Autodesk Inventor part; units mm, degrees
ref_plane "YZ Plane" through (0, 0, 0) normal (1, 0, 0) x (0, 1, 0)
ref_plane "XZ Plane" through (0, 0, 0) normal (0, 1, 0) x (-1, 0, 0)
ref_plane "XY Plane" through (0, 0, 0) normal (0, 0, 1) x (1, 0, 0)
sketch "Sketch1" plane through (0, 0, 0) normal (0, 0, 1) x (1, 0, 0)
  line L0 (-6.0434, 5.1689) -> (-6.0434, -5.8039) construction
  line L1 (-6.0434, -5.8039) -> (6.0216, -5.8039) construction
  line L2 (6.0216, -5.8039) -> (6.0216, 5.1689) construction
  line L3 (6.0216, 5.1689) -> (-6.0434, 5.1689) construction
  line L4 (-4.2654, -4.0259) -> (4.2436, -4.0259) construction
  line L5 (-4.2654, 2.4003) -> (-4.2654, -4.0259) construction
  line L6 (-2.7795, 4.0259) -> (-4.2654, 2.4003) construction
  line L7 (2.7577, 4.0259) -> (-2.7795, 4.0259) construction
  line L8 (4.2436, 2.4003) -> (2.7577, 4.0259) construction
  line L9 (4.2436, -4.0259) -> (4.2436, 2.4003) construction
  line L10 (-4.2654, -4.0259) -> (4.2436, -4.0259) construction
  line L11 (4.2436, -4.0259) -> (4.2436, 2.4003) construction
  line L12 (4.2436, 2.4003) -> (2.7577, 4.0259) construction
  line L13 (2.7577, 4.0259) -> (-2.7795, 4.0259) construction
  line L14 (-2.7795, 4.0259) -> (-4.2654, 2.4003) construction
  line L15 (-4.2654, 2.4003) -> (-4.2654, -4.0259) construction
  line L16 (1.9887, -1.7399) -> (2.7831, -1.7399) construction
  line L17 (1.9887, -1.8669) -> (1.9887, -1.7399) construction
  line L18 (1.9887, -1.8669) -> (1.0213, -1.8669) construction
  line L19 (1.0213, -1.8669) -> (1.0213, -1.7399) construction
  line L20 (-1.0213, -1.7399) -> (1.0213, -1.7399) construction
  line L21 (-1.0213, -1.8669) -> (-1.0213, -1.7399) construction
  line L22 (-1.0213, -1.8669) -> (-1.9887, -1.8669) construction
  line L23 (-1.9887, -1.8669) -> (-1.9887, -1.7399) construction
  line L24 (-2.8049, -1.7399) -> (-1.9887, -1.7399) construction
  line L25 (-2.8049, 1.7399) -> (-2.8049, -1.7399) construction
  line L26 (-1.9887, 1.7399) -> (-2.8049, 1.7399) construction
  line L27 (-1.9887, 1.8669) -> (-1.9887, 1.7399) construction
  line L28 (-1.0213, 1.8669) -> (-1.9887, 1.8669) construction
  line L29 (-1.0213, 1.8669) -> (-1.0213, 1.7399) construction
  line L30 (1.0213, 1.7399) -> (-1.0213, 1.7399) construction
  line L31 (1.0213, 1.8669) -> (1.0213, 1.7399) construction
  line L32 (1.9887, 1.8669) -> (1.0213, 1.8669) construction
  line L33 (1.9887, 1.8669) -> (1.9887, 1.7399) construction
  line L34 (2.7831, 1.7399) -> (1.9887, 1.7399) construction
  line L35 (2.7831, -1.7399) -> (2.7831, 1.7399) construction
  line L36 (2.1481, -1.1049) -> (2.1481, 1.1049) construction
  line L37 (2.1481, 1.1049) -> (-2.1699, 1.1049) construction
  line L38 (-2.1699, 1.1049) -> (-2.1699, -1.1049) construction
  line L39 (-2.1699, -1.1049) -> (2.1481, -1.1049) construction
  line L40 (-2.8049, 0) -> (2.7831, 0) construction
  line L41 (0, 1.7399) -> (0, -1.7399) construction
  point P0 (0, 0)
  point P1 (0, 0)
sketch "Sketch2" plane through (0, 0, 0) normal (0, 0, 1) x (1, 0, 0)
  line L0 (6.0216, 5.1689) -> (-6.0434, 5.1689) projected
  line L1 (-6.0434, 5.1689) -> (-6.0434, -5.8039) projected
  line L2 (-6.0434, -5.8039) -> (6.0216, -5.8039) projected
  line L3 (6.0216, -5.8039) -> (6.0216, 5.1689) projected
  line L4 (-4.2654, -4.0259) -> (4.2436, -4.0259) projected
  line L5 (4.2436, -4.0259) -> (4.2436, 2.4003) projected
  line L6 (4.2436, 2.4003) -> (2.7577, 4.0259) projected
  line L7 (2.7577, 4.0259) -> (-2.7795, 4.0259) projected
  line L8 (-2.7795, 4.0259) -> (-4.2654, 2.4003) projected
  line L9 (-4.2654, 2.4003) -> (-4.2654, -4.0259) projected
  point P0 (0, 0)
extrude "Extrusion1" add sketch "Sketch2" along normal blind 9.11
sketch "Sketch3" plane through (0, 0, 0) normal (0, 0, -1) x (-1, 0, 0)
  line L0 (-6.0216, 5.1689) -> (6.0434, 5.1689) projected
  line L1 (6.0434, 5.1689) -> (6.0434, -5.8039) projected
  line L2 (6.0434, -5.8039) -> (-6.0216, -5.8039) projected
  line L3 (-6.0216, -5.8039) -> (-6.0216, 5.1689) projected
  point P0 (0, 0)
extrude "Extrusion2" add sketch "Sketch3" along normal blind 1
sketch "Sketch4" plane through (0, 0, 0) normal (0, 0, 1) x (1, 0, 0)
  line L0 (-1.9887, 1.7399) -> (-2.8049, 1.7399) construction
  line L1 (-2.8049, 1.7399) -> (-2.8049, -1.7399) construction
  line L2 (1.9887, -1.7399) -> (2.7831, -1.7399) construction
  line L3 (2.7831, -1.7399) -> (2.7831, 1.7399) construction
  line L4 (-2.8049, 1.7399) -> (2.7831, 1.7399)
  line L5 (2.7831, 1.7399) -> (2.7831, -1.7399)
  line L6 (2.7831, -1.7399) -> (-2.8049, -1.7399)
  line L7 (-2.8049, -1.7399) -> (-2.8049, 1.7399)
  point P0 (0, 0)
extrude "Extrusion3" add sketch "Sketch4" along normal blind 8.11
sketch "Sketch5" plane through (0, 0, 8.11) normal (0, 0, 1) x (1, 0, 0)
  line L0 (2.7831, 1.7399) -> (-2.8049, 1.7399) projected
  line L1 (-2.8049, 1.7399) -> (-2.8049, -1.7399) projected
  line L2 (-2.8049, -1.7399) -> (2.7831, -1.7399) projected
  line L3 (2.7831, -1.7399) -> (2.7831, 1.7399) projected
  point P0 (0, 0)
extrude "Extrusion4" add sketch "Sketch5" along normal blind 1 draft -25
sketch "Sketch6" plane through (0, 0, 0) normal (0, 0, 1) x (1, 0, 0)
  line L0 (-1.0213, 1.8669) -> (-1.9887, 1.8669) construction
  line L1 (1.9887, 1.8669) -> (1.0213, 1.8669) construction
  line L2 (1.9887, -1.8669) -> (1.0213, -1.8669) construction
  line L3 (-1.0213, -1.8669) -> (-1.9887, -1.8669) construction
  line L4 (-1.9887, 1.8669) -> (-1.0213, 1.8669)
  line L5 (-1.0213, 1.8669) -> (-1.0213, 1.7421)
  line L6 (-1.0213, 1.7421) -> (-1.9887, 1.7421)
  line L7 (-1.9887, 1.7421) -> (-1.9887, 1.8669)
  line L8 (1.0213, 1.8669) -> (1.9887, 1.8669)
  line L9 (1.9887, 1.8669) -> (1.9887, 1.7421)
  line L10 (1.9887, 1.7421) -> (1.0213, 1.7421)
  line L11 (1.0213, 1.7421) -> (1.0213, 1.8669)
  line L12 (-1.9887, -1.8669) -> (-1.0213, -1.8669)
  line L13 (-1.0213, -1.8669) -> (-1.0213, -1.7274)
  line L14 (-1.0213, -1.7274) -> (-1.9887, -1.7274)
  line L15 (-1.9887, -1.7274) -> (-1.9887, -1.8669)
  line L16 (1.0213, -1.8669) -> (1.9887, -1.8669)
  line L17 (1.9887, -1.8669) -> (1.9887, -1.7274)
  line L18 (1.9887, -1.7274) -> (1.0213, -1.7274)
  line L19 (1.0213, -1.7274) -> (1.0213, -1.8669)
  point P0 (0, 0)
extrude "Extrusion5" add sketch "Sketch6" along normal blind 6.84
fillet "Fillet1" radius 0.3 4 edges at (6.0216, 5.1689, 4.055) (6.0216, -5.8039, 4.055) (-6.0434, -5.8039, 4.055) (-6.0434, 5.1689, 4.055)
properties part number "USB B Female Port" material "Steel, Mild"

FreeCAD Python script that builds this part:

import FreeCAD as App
import Part
import Sketcher
Q = App.Units.Quantity


def edges_at(feature, points):
    """Names of the edges that pass closest to the given points."""
    edges = feature.Shape.Edges
    near = lambda p: min(range(len(edges)), key=lambda i: edges[i].distToShape(Part.Vertex(*p))[0])
    return sorted({f"Edge{near(p) + 1}" for p in points})


def add_polygon(sketch, points):
    """Adds a closed chain of lines whose ends are joined by coincident constraints."""
    first, n = sketch.GeometryCount, len(points)
    for a, b in zip(points, points[1:] + points[:1]):
        sketch.addGeometry(Part.LineSegment(App.Vector(*a, 0), App.Vector(*b, 0)), False)
    for i in range(n):
        sketch.addConstraint(Sketcher.Constraint("Coincident", first + i, 2, first + (i + 1) % n, 1))

doc = App.newDocument("Part")
body = doc.addObject("PartDesign::Body", "Body")

# Sketch on XY plane
sketch1 = doc.addObject("Sketcher::SketchObject", "Sketch")
body.addObject(sketch1)
sketch1.AttachmentSupport = (doc.XY_Plane, [""])
sketch1.MapMode = "FlatFace"
add_polygon(sketch1, [(6.0216, -5.8039), (6.0216, 5.1689), (-6.0434, 5.1689), (-6.0434, -5.8039)])  # lines 0-3
add_polygon(sketch1, [(4.2436, -4.0259), (-4.2654, -4.0259), (-4.2654, 2.4003), (-2.7795, 4.0259), (2.7577, 4.0259), (4.2436, 2.4003)])  # lines 4-9
sketch1.addConstraint(Sketcher.Constraint("Vertical", 0))
sketch1.addConstraint(Sketcher.Constraint("Horizontal", 1))
sketch1.addConstraint(Sketcher.Constraint("Vertical", 2))
sketch1.addConstraint(Sketcher.Constraint("Horizontal", 3))
sketch1.addConstraint(Sketcher.Constraint("Horizontal", 4))
sketch1.addConstraint(Sketcher.Constraint("Vertical", 5))
sketch1.addConstraint(Sketcher.Constraint("Horizontal", 7))
sketch1.addConstraint(Sketcher.Constraint("Vertical", 9))
sketch1.addConstraint(Sketcher.Constraint("Horizontal", 5, 2, 8, 2))
sketch1.addConstraint(Sketcher.Constraint("Equal", 6, 8))
sketch1.addConstraint(Sketcher.Constraint("DistanceX", 1, 2, 1, 1, Q("0.475 in")))
sketch1.addConstraint(Sketcher.Constraint("DistanceX", 4, 2, 4, 1, Q("0.335 in")))
sketch1.addConstraint(Sketcher.Constraint("DistanceX", 7, 1, 7, 2, Q("0.218 in")))
sketch1.addConstraint(Sketcher.Constraint("DistanceY", 0, 1, 0, 2, Q("0.432 in")))
sketch1.addConstraint(Sketcher.Constraint("DistanceY", 5, 1, 5, 2, Q("0.253 in")))
sketch1.addConstraint(Sketcher.Constraint("Angle", 6, Q("47.5707 deg")))
sketch1.addConstraint(Sketcher.Constraint("DistanceX", 2, 2, 4, 2, Q("0.07 in")))
sketch1.addConstraint(Sketcher.Constraint("DistanceY", 2, 2, 4, 2, Q("0.07 in")))
sketch1.addConstraint(Sketcher.Constraint("DistanceY", -1, 1, 0, 2, Q("0.2035 in")))
sketch1.addConstraint(Sketcher.Constraint("DistanceX", -1, 1, 0, 2, 6.0216))
pad1 = doc.addObject("PartDesign::Pad", "Pad")
body.addObject(pad1)
pad1.Profile = sketch1
pad1.Length = 9.11

# Sketch on XY plane
sketch2 = doc.addObject("Sketcher::SketchObject", "Sketch001")
body.addObject(sketch2)
sketch2.AttachmentSupport = (doc.XY_Plane, [""])
sketch2.MapMode = "FlatFace"
add_polygon(sketch2, [(-6.0434, 5.1689), (6.0216, 5.1689), (6.0216, -5.8039), (-6.0434, -5.8039)])  # lines 0-3
sketch2.addConstraint(Sketcher.Constraint("Horizontal", 0))
sketch2.addConstraint(Sketcher.Constraint("Vertical", 1))
sketch2.addConstraint(Sketcher.Constraint("Horizontal", 2))
sketch2.addConstraint(Sketcher.Constraint("Vertical", 3))
sketch2.addConstraint(Sketcher.Constraint("DistanceX", 0, 1, 0, 2, Q("0.475 in")))
sketch2.addConstraint(Sketcher.Constraint("DistanceY", 1, 2, 1, 1, Q("0.432 in")))
sketch2.addConstraint(Sketcher.Constraint("DistanceY", -1, 1, 0, 2, Q("0.2035 in")))
sketch2.addConstraint(Sketcher.Constraint("DistanceX", -1, 1, 0, 2, 6.0216))
pad2 = doc.addObject("PartDesign::Pad", "Pad001")
body.addObject(pad2)
pad2.Profile = sketch2
pad2.Length = 1
pad2.Reversed = True

# Sketch on XY plane
sketch3 = doc.addObject("Sketcher::SketchObject", "Sketch002")
body.addObject(sketch3)
sketch3.AttachmentSupport = (doc.XY_Plane, [""])
sketch3.MapMode = "FlatFace"
add_polygon(sketch3, [(2.7831, 1.7399), (-2.8049, 1.7399), (-2.8049, -1.7399), (2.7831, -1.7399)])  # lines 0-3
sketch3.addConstraint(Sketcher.Constraint("Horizontal", 0))
sketch3.addConstraint(Sketcher.Constraint("Vertical", 1))
sketch3.addConstraint(Sketcher.Constraint("Horizontal", 2))
sketch3.addConstraint(Sketcher.Constraint("Vertical", 3))
sketch3.addConstraint(Sketcher.Constraint("DistanceX", 0, 2, 0, 1, Q("0.22 in")))
sketch3.addConstraint(Sketcher.Constraint("DistanceY", 1, 2, 1, 1, Q("0.137 in")))
sketch3.addConstraint(Sketcher.Constraint("DistanceY", -1, 1, 0, 2, Q("0.0685 in")))
sketch3.addConstraint(Sketcher.Constraint("DistanceX", 0, 2, -1, 1, 2.805))
pad3 = doc.addObject("PartDesign::Pad", "Pad002")
body.addObject(pad3)
pad3.Profile = sketch3
pad3.Length = Q("0.3192913 in")

# Sketch on XY plane
sketch4 = doc.addObject("Sketcher::SketchObject", "Sketch003")
body.addObject(sketch4)
sketch4.AttachmentSupport = (doc.XY_Plane, [""])
sketch4.MapMode = "FlatFace"
sketch4.AttachmentOffset = App.Placement(App.Vector(0, 0, 0.3192913 * 25.4), App.Rotation())
add_polygon(sketch4, [(2.7831, -1.7399), (2.7831, 1.7399), (-2.8049, 1.7399), (-2.8049, -1.7399)])  # lines 0-3
sketch4.addConstraint(Sketcher.Constraint("Vertical", 0))
sketch4.addConstraint(Sketcher.Constraint("Horizontal", 1))
sketch4.addConstraint(Sketcher.Constraint("Vertical", 2))
sketch4.addConstraint(Sketcher.Constraint("Horizontal", 3))
sketch4.addConstraint(Sketcher.Constraint("DistanceX", 1, 2, 1, 1, Q("0.22 in")))
sketch4.addConstraint(Sketcher.Constraint("DistanceY", 0, 1, 0, 2, Q("0.137 in")))
sketch4.addConstraint(Sketcher.Constraint("DistanceY", -1, 1, 0, 2, Q("0.0685 in")))
sketch4.addConstraint(Sketcher.Constraint("DistanceX", -1, 1, 0, 2, 2.783))
pad4 = doc.addObject("PartDesign::Pad", "Pad003")
body.addObject(pad4)
pad4.Profile = sketch4
pad4.Length = 1
pad4.TaperAngle = -25

# Sketch on XY plane
sketch5 = doc.addObject("Sketcher::SketchObject", "Sketch004")
body.addObject(sketch5)
sketch5.AttachmentSupport = (doc.XY_Plane, [""])
sketch5.MapMode = "FlatFace"
add_polygon(sketch5, [(-1.0213, 1.8669), (-1.9887, 1.8669), (-1.9887, 1.7421), (-1.0213, 1.7421)])  # lines 0-3
add_polygon(sketch5, [(1.9887, 1.8669), (1.0213, 1.8669), (1.0213, 1.7421), (1.9887, 1.7421)])  # lines 4-7
add_polygon(sketch5, [(-1.9887, -1.7274), (-1.9887, -1.8669), (-1.0213, -1.8669), (-1.0213, -1.7274)])  # lines 8-11
add_polygon(sketch5, [(1.0213, -1.7274), (1.0213, -1.8669), (1.9887, -1.8669), (1.9887, -1.7274)])  # lines 12-15
sketch5.addConstraint(Sketcher.Constraint("Horizontal", 0))
sketch5.addConstraint(Sketcher.Constraint("Vertical", 1))
sketch5.addConstraint(Sketcher.Constraint("Horizontal", 2))
sketch5.addConstraint(Sketcher.Constraint("Vertical", 3))
sketch5.addConstraint(Sketcher.Constraint("Horizontal", 4))
sketch5.addConstraint(Sketcher.Constraint("Vertical", 5))
sketch5.addConstraint(Sketcher.Constraint("Horizontal", 6))
sketch5.addConstraint(Sketcher.Constraint("Vertical", 7))
sketch5.addConstraint(Sketcher.Constraint("Vertical", 8))
sketch5.addConstraint(Sketcher.Constraint("Horizontal", 9))
sketch5.addConstraint(Sketcher.Constraint("Vertical", 10))
sketch5.addConstraint(Sketcher.Constraint("Horizontal", 11))
sketch5.addConstraint(Sketcher.Constraint("Vertical", 12))
sketch5.addConstraint(Sketcher.Constraint("Horizontal", 13))
sketch5.addConstraint(Sketcher.Constraint("Vertical", 14))
sketch5.addConstraint(Sketcher.Constraint("Horizontal", 15))
sketch5.addConstraint(Sketcher.Constraint("Symmetric", 7, 2, 8, 2, -1, 1))
sketch5.addConstraint(Sketcher.Constraint("Symmetric", 3, 2, 12, 2, -1, 1))
sketch5.addConstraint(Sketcher.Constraint("Symmetric", 3, 2, 4, 2, -2))
sketch5.addConstraint(Sketcher.Constraint("Symmetric", 1, 2, 6, 2, -2))
sketch5.addConstraint(Sketcher.Constraint("Symmetric", 11, 2, 14, 2, -2))
sketch5.addConstraint(Sketcher.Constraint("Vertical", 3, 2, 9, 2))
sketch5.addConstraint(Sketcher.Constraint("DistanceY", 8, 2, 8, 1, Q("0.0055 in")))
sketch5.addConstraint(Sketcher.Constraint("DistanceY", 10, 2, -1, 1, Q("0.068 in")))
sketch5.addConstraint(Sketcher.Constraint("DistanceX", 0, 2, 0, 1, 0.9674))
sketch5.addConstraint(Sketcher.Constraint("DistanceY", 1, 2, 1, 1, 0.1248))
sketch5.addConstraint(Sketcher.Constraint("DistanceX", 0, 2, -1, 1, Q("0.0783 in")))
pad5 = doc.addObject("PartDesign::Pad", "Pad004")
body.addObject(pad5)
pad5.Profile = sketch5
pad5.Length = Q("0.2692913 in")
doc.recompute()

fillet = doc.addObject("PartDesign::Fillet", "Fillet")
body.addObject(fillet)
fillet.Base = (pad5, edges_at(pad5, [
    (6.022, 5.169, 4.055),
    (6.022, -5.804, 4.055),
    (-6.043, -5.804, 4.055),
    (-6.043, 5.169, 4.055),
]))
fillet.Radius = Q("0.011811 in")

doc.recompute()
